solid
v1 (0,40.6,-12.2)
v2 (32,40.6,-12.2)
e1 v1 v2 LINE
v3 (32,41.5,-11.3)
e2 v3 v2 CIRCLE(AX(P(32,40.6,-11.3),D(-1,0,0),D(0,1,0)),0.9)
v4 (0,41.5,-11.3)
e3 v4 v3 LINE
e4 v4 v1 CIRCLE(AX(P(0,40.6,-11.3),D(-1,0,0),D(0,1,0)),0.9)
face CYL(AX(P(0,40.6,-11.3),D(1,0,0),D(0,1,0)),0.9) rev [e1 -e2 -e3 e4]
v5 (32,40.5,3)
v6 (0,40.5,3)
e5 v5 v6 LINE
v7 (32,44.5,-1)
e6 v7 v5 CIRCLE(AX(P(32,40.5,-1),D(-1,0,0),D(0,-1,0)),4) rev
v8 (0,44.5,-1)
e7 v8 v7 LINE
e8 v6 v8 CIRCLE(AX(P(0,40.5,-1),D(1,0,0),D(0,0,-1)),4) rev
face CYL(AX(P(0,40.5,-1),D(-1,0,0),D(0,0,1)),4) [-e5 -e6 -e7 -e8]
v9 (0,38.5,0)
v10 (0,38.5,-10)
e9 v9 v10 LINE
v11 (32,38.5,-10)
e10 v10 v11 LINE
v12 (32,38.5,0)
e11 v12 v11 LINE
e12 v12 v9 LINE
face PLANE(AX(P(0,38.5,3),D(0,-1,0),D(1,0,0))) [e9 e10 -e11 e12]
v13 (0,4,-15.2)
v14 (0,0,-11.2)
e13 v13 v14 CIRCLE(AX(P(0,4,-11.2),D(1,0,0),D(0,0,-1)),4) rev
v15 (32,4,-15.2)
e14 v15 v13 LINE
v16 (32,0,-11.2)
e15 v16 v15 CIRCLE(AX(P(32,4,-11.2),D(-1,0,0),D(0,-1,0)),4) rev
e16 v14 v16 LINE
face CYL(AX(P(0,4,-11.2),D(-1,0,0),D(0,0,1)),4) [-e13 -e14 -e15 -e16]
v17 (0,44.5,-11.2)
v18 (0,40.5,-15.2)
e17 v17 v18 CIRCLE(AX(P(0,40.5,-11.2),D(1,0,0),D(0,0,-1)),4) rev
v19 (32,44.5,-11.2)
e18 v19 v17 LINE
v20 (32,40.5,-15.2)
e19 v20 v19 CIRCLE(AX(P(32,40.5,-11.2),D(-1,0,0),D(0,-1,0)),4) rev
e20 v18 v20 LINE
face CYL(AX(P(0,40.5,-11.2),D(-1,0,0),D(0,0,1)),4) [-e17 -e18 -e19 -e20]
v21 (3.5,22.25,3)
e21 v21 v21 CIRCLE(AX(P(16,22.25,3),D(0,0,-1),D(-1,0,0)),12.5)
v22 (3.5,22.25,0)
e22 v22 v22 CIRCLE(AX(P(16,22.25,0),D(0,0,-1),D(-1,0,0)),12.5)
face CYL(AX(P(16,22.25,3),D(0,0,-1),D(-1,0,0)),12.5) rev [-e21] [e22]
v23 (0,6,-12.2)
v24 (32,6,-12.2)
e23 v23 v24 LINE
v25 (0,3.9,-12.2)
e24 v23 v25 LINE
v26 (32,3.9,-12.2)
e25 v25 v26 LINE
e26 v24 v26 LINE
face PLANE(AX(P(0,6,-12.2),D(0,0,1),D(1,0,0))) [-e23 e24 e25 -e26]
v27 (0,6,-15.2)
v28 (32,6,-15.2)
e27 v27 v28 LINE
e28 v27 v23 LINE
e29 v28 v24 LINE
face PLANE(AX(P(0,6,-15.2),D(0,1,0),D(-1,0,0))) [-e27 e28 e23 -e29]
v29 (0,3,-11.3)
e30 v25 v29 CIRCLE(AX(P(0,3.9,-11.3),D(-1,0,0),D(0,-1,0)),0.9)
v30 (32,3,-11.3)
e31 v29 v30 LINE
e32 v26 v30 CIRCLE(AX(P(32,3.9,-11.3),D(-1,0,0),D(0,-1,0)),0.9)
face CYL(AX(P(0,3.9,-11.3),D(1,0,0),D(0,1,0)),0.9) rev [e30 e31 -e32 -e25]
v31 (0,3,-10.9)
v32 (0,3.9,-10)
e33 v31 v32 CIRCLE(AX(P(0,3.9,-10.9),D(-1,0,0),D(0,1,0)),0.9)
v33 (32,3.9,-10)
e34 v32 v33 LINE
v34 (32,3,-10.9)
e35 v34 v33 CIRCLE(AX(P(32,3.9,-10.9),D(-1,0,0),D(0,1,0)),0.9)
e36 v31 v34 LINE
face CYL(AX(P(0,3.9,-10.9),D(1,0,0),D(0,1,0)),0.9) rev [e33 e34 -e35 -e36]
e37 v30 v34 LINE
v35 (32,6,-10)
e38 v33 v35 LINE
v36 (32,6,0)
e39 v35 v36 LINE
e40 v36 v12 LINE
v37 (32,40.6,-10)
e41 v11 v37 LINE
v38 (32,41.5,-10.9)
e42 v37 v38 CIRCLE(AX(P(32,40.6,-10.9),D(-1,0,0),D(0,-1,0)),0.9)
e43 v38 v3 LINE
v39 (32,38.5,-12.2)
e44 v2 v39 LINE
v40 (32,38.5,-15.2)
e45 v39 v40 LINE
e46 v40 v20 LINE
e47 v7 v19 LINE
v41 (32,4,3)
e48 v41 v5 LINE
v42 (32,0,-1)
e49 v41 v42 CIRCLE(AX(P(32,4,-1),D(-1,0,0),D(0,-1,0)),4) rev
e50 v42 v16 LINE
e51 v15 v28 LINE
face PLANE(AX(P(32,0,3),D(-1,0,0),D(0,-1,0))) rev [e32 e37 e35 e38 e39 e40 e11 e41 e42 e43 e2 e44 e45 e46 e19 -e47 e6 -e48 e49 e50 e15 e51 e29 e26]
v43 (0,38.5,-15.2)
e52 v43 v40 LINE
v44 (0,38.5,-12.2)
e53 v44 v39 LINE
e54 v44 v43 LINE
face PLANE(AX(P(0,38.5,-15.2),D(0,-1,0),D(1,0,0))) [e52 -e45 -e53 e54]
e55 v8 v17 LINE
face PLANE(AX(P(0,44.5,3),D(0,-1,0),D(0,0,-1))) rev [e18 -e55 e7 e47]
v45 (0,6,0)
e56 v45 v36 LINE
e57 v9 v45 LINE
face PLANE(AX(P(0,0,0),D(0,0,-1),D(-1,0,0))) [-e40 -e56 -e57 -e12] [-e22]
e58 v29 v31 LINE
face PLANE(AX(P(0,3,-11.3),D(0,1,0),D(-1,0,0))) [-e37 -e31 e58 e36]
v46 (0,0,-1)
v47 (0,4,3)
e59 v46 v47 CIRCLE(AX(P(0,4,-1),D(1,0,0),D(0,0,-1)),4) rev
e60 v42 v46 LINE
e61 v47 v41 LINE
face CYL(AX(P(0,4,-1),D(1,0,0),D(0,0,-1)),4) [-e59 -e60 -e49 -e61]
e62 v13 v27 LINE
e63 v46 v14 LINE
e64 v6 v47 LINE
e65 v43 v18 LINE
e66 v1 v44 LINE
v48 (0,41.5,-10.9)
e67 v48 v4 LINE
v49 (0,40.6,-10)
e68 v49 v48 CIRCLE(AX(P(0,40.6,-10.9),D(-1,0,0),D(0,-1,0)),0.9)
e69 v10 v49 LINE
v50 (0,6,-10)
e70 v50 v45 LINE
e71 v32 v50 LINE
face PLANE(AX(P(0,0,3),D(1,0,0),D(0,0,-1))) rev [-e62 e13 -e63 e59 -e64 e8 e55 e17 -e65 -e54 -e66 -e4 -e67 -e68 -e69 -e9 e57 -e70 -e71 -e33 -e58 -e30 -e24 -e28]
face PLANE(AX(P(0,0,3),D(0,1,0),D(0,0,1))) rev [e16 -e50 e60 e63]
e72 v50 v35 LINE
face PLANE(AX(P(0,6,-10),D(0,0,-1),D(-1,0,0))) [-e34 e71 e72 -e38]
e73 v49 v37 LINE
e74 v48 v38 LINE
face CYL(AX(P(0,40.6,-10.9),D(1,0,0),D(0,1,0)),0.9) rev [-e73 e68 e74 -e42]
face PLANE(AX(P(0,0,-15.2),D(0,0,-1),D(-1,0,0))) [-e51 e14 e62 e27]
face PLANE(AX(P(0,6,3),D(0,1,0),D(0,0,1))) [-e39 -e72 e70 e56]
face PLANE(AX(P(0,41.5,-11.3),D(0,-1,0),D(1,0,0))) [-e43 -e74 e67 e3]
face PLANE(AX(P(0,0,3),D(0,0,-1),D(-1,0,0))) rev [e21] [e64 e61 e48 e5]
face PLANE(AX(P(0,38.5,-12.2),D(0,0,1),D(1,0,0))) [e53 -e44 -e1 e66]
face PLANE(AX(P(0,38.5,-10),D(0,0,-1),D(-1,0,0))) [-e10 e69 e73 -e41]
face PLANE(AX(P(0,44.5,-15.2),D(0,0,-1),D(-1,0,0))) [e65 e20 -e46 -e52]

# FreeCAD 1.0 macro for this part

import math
import FreeCAD as App
import Part
import Sketcher
from FreeCAD import Vector


def edges_at(feature, points):
    """Names of the edges that pass closest to the given points."""
    edges = feature.Shape.Edges
    near = lambda p: min(range(len(edges)), key=lambda i: edges[i].distToShape(Part.Vertex(*p))[0])
    return sorted({f"Edge{near(p) + 1}" for p in points})

doc = App.newDocument("Part")
body = doc.addObject("PartDesign::Body", "Body")

# Sketch on XY plane
sketch1 = doc.addObject("Sketcher::SketchObject", "Sketch")
body.addObject(sketch1)
sketch1.AttachmentSupport = (doc.XY_Plane, [""])
sketch1.MapMode = "FlatFace"
sketch1.addGeometry([
    Part.LineSegment(Vector(0, 44, 0), Vector(0, 0, 0)),
    Part.LineSegment(Vector(0, 0, 0), Vector(32, 0, 0)),
    Part.LineSegment(Vector(32, 0, 0), Vector(32, 44, 0)),
    Part.LineSegment(Vector(32, 44, 0), Vector(0, 44, 0)),
], False)
sketch1.addConstraint([
    Sketcher.Constraint("Coincident", 0, 2, 1, 1),
    Sketcher.Constraint("Coincident", 1, 2, 2, 1),
    Sketcher.Constraint("Coincident", 2, 2, 3, 1),
    Sketcher.Constraint("Coincident", 3, 2, 0, 1),
    Sketcher.Constraint("Vertical", 0),
    Sketcher.Constraint("Horizontal", 1),
    Sketcher.Constraint("Vertical", 2),
    Sketcher.Constraint("Horizontal", 3),
    Sketcher.Constraint("Coincident", 0, 2, -1, 1),
    Sketcher.Constraint("DistanceX", 1, 1, 1, 2, 32.0),
    Sketcher.Constraint("DistanceY", 0, 2, 0, 1, 44.5),
])
pad1 = doc.addObject("PartDesign::Pad", "Pad")
body.addObject(pad1)
pad1.Profile = sketch1
pad1.Length = 3

# Sketch on YZ plane
sketch2 = doc.addObject("Sketcher::SketchObject", "Sketch001")
body.addObject(sketch2)
sketch2.AttachmentSupport = (doc.YZ_Plane, [""])
sketch2.MapMode = "FlatFace"
sketch2.AttachmentOffset = App.Placement(Vector(0, 0, 32), App.Rotation())
sketch2.addGeometry([
    Part.LineSegment(Vector(38.5, -15.2, 0), Vector(44.5, -15.2, 0)),  # 0
    Part.LineSegment(Vector(44.5, -15.2, 0), Vector(44.5, 3, 0)),  # 1
    Part.LineSegment(Vector(44.5, 3, 0), Vector(38.5, 3, 0)),  # 2
    Part.LineSegment(Vector(38.5, 3, 0), Vector(38.5, -10, 0)),  # 3
    Part.LineSegment(Vector(38.5, -10, 0), Vector(40.6, -10, 0)),  # 4
    Part.ArcOfCircle(Part.Circle(Vector(40.6, -10.9, 0), Vector(0, 0, 1), 0.9), math.radians(0), math.radians(90)),  # 5
    Part.LineSegment(Vector(41.5, -10.9, 0), Vector(41.5, -11.3, 0)),  # 6
    Part.ArcOfCircle(Part.Circle(Vector(40.6, -11.3, 0), Vector(0, 0, 1), 0.9), math.radians(-90), math.radians(0)),  # 7
    Part.LineSegment(Vector(40.6, -12.2, 0), Vector(38.5, -12.2, 0)),  # 8
    Part.LineSegment(Vector(38.5, -12.2, 0), Vector(38.5, -15.2, 0)),  # 9
    Part.LineSegment(Vector(6, 3, 0), Vector(0, 3, 0)),  # 10
    Part.LineSegment(Vector(0, 3, 0), Vector(0, -15.2, 0)),  # 11
    Part.LineSegment(Vector(0, -15.2, 0), Vector(6, -15.2, 0)),  # 12
    Part.LineSegment(Vector(6, -15.2, 0), Vector(6, -12.2, 0)),  # 13
    Part.LineSegment(Vector(6, -12.2, 0), Vector(3.9, -12.2, 0)),  # 14
    Part.ArcOfCircle(Part.Circle(Vector(3.9, -11.3, 0), Vector(0, 0, 1), 0.9), math.radians(180), math.radians(270)),  # 15
    Part.LineSegment(Vector(3, -11.3, 0), Vector(3, -10.9, 0)),  # 16
    Part.ArcOfCircle(Part.Circle(Vector(3.9, -10.9, 0), Vector(0, 0, 1), 0.9), math.radians(90), math.radians(180)),  # 17
    Part.LineSegment(Vector(3.9, -10, 0), Vector(6, -10, 0)),  # 18
    Part.LineSegment(Vector(6, -10, 0), Vector(6, 3, 0)),  # 19
], False)
sketch2.addConstraint([
    Sketcher.Constraint("Coincident", 0, 2, 1, 1),
    Sketcher.Constraint("Coincident", 1, 2, 2, 1),
    Sketcher.Constraint("Coincident", 2, 2, 3, 1),
    Sketcher.Constraint("Coincident", 3, 2, 4, 1),
    Sketcher.Constraint("Tangent", 4, 2, 5, 2),
    Sketcher.Constraint("Tangent", 5, 1, 6, 1),
    Sketcher.Constraint("Tangent", 6, 2, 7, 2),
    Sketcher.Constraint("Tangent", 7, 1, 8, 1),
    Sketcher.Constraint("Coincident", 8, 2, 9, 1),
    Sketcher.Constraint("Coincident", 9, 2, 0, 1),
    Sketcher.Constraint("Coincident", 10, 2, 11, 1),
    Sketcher.Constraint("Coincident", 11, 2, 12, 1),
    Sketcher.Constraint("Coincident", 12, 2, 13, 1),
    Sketcher.Constraint("Coincident", 13, 2, 14, 1),
    Sketcher.Constraint("Tangent", 14, 2, 15, 2),
    Sketcher.Constraint("Tangent", 15, 1, 16, 1),
    Sketcher.Constraint("Tangent", 16, 2, 17, 2),
    Sketcher.Constraint("Tangent", 17, 1, 18, 1),
    Sketcher.Constraint("Coincident", 18, 2, 19, 1),
    Sketcher.Constraint("Coincident", 19, 2, 10, 1),
    Sketcher.Constraint("Horizontal", 0),
    Sketcher.Constraint("Vertical", 1),
    Sketcher.Constraint("Horizontal", 2),
    Sketcher.Constraint("Vertical", 3),
    Sketcher.Constraint("Horizontal", 4),
    Sketcher.Constraint("Vertical", 6),
    Sketcher.Constraint("Horizontal", 8),
    Sketcher.Constraint("Vertical", 9),
    Sketcher.Constraint("Horizontal", 10),
    Sketcher.Constraint("Vertical", 11),
    Sketcher.Constraint("Horizontal", 12),
    Sketcher.Constraint("Vertical", 13),
    Sketcher.Constraint("Horizontal", 14),
    Sketcher.Constraint("Vertical", 16),
    Sketcher.Constraint("Horizontal", 18),
    Sketcher.Constraint("Vertical", 19),
    Sketcher.Constraint("Equal", 5, 7),
    Sketcher.Constraint("Equal", 7, 15),
    Sketcher.Constraint("Equal", 15, 17),
    Sketcher.Constraint("PointOnObject", 10, 2, -2),
    Sketcher.Constraint("Horizontal", 7, 3, 15, 3),
    Sketcher.Constraint("Horizontal", 5, 3, 17, 3),
    Sketcher.Constraint("Horizontal", 2, 2, 10, 2),
    Sketcher.Constraint("Horizontal", 9, 2, 11, 2),
    Sketcher.Constraint("Vertical", 3, 2, 8, 2),
    Sketcher.Constraint("Vertical", 13, 2, 18, 2),
    Sketcher.Constraint("Equal", 2, 10),
    Sketcher.Constraint("Equal", 8, 14),
    Sketcher.Constraint("Radius", 5, 0.9),
    Sketcher.Constraint("DistanceX", 0, 1, 0, 2, 6.0),
    Sketcher.Constraint("DistanceY", 3, 2, 3, 1, 13.0),
    Sketcher.Constraint("DistanceY", 9, 2, 9, 1, 3.0),
    Sketcher.Constraint("DistanceX", 4, 1, 4, 2, 2.1),
    Sketcher.Constraint("DistanceY", 1, 1, 1, 2, 18.2),
    Sketcher.Constraint("DistanceY", -1, 1, 1, 2, 3.0),
    Sketcher.Constraint("DistanceX", -1, 1, 5, 3, 40.6),
])
pad2 = doc.addObject("PartDesign::Pad", "Pad001")
body.addObject(pad2)
pad2.Profile = sketch2
pad2.Length = 32
pad2.Reversed = True

# Sketch on XY plane
sketch3 = doc.addObject("Sketcher::SketchObject", "Sketch002")
body.addObject(sketch3)
sketch3.AttachmentSupport = (doc.XY_Plane, [""])
sketch3.MapMode = "FlatFace"
sketch3.addGeometry(Part.Circle(Vector(16, 22, 0), Vector(0, 0, 1), 12), False)
sketch3.addConstraint([
    Sketcher.Constraint("Diameter", 0, 25.0),
    Sketcher.Constraint("DistanceX", -1, 1, 0, 3, 16.0),
    Sketcher.Constraint("DistanceY", -1, 1, 0, 3, 22.25),
])
pocket1 = doc.addObject("PartDesign::Pocket", "Pocket")
body.addObject(pocket1)
pocket1.Profile = sketch3
pocket1.Type = "ThroughAll"
pocket1.Reversed = True
doc.recompute()

fillet = doc.addObject("PartDesign::Fillet", "Fillet")
body.addObject(fillet)
fillet.Base = (pocket1, edges_at(pocket1, [(16, 44.5, 3), (16, 0, 3)]))
fillet.Radius = 4
doc.recompute()

fillet2 = doc.addObject("PartDesign::Fillet", "Fillet001")
body.addObject(fillet2)
fillet2.Base = (fillet, edges_at(fillet, [(16, 44.5, -15.2), (16, 0, -15.2)]))
fillet2.Radius = 4

doc.recompute()
